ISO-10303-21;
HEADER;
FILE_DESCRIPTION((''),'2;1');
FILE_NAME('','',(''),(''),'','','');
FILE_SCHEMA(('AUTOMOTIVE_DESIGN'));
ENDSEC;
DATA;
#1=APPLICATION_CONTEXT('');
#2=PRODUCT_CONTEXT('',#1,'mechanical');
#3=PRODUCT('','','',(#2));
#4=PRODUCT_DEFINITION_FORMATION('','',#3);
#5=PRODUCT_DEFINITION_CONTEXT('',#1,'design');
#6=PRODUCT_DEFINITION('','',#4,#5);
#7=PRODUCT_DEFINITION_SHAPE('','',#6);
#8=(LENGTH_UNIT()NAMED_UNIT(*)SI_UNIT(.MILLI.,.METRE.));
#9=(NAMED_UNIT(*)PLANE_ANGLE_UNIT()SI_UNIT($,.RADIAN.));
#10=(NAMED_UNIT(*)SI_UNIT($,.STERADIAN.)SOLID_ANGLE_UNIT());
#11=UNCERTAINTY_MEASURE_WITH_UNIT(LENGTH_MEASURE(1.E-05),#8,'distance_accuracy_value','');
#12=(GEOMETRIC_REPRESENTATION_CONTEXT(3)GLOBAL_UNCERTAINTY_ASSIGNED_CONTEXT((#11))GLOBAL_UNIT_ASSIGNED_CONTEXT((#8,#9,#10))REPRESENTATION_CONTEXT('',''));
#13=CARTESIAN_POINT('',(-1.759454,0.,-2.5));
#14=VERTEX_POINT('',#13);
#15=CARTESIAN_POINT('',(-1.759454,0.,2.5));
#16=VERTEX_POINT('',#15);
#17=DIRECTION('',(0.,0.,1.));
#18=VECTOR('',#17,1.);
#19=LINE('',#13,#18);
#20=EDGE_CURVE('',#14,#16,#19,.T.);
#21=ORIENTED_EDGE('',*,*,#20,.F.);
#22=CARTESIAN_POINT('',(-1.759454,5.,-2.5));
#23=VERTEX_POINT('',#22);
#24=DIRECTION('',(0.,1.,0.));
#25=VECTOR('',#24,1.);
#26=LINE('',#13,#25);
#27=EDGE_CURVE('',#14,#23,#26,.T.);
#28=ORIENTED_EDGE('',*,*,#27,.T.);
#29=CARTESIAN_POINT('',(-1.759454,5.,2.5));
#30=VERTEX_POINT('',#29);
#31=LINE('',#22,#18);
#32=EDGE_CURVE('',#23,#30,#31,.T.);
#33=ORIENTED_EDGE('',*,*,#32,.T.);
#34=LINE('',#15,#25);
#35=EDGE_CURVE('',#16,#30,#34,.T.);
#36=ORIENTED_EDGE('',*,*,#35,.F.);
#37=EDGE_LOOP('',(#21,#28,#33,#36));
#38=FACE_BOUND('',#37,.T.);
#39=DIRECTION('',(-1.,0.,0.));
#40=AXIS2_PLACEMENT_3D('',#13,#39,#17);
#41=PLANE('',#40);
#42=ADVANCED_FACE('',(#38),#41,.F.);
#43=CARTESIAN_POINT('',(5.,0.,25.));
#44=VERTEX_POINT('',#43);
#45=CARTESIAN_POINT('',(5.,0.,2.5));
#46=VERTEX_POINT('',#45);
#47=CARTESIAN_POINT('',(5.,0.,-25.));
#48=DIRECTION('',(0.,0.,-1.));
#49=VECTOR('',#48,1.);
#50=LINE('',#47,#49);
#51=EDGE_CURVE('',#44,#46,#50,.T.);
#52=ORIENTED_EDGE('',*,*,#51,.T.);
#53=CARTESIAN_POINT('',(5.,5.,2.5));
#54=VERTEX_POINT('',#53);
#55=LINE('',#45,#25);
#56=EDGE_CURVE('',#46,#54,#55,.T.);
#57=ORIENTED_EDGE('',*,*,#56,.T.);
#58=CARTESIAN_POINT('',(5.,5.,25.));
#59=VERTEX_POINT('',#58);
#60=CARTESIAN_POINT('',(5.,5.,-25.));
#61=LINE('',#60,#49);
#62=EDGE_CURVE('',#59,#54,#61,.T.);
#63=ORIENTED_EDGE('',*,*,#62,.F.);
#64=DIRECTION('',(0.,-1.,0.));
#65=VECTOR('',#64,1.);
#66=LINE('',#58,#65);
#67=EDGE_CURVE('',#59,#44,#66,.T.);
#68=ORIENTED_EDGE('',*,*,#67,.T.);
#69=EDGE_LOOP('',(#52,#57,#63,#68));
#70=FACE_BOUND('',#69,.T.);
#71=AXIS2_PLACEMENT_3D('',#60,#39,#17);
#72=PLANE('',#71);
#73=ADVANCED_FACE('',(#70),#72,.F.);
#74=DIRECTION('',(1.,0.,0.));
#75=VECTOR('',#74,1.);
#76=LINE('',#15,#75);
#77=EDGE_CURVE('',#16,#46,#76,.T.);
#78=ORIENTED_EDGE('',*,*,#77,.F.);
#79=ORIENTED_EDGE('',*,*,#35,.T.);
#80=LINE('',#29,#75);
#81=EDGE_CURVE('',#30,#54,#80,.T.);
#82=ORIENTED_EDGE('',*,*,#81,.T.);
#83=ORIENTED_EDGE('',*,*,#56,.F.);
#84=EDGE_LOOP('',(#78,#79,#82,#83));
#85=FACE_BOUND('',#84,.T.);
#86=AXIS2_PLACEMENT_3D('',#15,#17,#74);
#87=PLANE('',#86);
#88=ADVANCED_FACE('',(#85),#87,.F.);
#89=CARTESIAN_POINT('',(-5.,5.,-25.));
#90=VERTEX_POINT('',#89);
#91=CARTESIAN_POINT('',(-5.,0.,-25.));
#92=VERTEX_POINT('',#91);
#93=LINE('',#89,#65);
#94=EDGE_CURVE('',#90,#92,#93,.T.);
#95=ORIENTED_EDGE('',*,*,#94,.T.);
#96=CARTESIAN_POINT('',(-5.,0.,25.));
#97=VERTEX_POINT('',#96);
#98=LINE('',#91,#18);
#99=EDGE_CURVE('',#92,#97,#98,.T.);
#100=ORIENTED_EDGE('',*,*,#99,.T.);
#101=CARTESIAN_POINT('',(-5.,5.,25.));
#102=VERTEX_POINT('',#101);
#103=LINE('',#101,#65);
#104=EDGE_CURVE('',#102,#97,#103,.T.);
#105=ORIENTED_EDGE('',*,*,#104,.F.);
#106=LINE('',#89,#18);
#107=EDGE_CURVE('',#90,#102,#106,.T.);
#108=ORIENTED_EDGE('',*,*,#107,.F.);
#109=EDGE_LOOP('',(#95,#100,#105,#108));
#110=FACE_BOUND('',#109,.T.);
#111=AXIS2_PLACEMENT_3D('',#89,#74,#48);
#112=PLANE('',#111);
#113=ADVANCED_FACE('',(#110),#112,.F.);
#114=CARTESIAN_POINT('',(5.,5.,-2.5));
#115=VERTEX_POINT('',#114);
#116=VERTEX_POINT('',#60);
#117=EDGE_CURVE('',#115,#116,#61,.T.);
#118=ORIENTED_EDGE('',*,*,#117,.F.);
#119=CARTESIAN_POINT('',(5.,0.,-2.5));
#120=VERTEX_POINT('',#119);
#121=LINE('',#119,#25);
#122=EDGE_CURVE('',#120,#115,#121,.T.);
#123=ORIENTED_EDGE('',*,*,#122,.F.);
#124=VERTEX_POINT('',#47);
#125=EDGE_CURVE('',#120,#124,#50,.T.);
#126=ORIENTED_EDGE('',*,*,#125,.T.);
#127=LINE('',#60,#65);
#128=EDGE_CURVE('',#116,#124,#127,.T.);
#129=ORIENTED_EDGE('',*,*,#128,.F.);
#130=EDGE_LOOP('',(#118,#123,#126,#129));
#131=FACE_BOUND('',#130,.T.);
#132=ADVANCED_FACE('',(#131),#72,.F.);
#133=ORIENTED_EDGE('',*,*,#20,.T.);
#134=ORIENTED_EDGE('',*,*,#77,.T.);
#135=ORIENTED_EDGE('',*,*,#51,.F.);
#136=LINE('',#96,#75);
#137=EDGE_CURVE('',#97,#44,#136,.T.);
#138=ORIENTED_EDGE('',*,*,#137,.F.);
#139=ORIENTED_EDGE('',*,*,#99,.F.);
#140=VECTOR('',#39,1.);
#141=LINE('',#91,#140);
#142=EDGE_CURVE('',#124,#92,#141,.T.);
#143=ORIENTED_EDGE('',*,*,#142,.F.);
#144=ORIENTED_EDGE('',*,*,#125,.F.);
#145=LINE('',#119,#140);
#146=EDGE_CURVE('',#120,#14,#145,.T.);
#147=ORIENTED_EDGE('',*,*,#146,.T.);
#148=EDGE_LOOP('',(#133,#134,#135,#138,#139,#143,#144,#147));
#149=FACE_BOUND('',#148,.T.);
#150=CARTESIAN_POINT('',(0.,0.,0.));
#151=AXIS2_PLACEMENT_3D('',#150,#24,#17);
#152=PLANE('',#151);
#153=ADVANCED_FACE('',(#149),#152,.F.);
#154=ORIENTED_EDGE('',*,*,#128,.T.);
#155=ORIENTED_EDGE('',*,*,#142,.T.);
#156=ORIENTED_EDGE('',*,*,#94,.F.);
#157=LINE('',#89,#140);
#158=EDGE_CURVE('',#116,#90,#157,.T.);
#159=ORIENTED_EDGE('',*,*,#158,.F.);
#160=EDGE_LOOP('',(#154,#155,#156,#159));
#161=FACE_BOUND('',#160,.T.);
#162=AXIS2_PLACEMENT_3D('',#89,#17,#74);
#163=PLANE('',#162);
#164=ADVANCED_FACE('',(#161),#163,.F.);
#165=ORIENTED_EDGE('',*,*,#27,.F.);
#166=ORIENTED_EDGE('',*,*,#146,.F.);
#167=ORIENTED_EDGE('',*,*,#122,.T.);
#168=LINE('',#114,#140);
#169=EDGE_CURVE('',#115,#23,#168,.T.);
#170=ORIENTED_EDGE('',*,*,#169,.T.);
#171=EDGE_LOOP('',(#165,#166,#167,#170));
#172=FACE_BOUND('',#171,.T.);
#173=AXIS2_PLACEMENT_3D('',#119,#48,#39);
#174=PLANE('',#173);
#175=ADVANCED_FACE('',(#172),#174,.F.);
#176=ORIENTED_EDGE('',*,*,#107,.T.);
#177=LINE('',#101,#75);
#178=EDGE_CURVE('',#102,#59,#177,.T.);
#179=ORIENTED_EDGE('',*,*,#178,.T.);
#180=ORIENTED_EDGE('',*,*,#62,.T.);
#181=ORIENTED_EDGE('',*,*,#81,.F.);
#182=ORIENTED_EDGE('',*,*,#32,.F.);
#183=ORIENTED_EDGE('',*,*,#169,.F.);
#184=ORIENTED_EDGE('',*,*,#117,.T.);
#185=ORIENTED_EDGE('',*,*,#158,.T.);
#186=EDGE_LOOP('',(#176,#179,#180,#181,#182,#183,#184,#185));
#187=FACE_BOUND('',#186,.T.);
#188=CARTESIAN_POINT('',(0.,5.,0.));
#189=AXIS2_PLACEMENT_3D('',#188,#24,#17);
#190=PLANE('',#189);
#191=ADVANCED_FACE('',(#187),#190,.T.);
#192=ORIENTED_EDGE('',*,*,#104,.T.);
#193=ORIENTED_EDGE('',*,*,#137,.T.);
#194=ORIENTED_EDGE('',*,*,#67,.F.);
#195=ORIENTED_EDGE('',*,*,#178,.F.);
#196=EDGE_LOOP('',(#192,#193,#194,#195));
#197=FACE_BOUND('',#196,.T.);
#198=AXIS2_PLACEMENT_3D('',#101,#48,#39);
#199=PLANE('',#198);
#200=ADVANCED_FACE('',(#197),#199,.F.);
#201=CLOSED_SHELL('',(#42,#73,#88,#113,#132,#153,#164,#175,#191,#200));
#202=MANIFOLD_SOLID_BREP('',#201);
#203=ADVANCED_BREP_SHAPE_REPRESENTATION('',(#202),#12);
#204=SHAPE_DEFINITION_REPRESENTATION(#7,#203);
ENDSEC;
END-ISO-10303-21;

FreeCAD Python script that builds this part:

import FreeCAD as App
import Part
import Sketcher
from FreeCAD import Vector
Q = App.Units.Quantity

doc = App.newDocument("Part")
body = doc.addObject("PartDesign::Body", "Body")

sketch1 = body.newObject("Sketcher::SketchObject", "Sketch")
sketch1.AttachmentSupport = (doc.getObject("XZ_Plane"), [""])
sketch1.MapMode = "FlatFace"
sketch1.addGeometry(Part.LineSegment(Vector(-5, -25, 0), Vector(-5, 25, 0)), False)
sketch1.addGeometry(Part.LineSegment(Vector(-5, 25, 0), Vector(5, 25, 0)), False)
sketch1.addGeometry(Part.LineSegment(Vector(5, 25, 0), Vector(5, -25, 0)), False)
sketch1.addGeometry(Part.LineSegment(Vector(5, -25, 0), Vector(-5, -25, 0)), False)
sketch1.addConstraint(Sketcher.Constraint("Coincident", 0, 2, 1, 1))
sketch1.addConstraint(Sketcher.Constraint("Coincident", 1, 2, 2, 1))
sketch1.addConstraint(Sketcher.Constraint("Coincident", 2, 2, 3, 1))
sketch1.addConstraint(Sketcher.Constraint("Coincident", 3, 2, 0, 1))
sketch1.addConstraint(Sketcher.Constraint("Vertical", 0))
sketch1.addConstraint(Sketcher.Constraint("Horizontal", 1))
sketch1.addConstraint(Sketcher.Constraint("Vertical", 2))
sketch1.addConstraint(Sketcher.Constraint("Horizontal", 3))
sketch1.addConstraint(Sketcher.Constraint("Symmetric", 0, 2, 2, 2, -1, 1))
sketch1.addConstraint(Sketcher.Constraint("DistanceX", 1, 1, 1, 2, Q("10 mm")))
sketch1.addConstraint(Sketcher.Constraint("DistanceY", 0, 1, 0, 2, Q("50 mm")))
pad1 = body.newObject("PartDesign::Pad", "Pad")
pad1.Profile = sketch1
pad1.Length = 5
pad1.Reversed = True

sketch2 = body.newObject("Sketcher::SketchObject", "Sketch001")
sketch2.AttachmentSupport = (doc.getObject("XZ_Plane"), [""])
sketch2.MapMode = "FlatFace"
sketch2.AttachmentOffset = App.Placement(Vector(0, 0, -5), App.Rotation())
sketch2.addGeometry(Part.LineSegment(Vector(5, -2, 0), Vector(-2, -2, 0)), False)
sketch2.addGeometry(Part.LineSegment(Vector(-2, -2, 0), Vector(-2, 2, 0)), False)
sketch2.addGeometry(Part.LineSegment(Vector(-2, 2, 0), Vector(5, 2, 0)), False)
sketch2.addGeometry(Part.LineSegment(Vector(5, 2, 0), Vector(5, -2, 0)), False)
sketch2.addConstraint(Sketcher.Constraint("Coincident", 0, 2, 1, 1))
sketch2.addConstraint(Sketcher.Constraint("Coincident", 1, 2, 2, 1))
sketch2.addConstraint(Sketcher.Constraint("Coincident", 2, 2, 3, 1))
sketch2.addConstraint(Sketcher.Constraint("Coincident", 3, 2, 0, 1))
sketch2.addConstraint(Sketcher.Constraint("Horizontal", 0))
sketch2.addConstraint(Sketcher.Constraint("Vertical", 1))
sketch2.addConstraint(Sketcher.Constraint("Horizontal", 2))
sketch2.addConstraint(Sketcher.Constraint("Vertical", 3))
sketch2.addConstraint(Sketcher.Constraint("DistanceY", 1, 1, 1, 2, Q("5 mm")))
sketch2.addConstraint(Sketcher.Constraint("DistanceX", -1, 1, 2, 2, Q("5 mm")))
sketch2.addConstraint(Sketcher.Constraint("DistanceY", 0, 2, -1, 1, Q("2.5 mm")))
sketch2.addConstraint(Sketcher.Constraint("DistanceX", 0, 2, 0, 1, Q("6.759454 mm")))
pocket1 = body.newObject("PartDesign::Pocket", "Pocket")
pocket1.Profile = sketch2
pocket1.Type = "ThroughAll"
pocket1.Reversed = True

doc.recompute()
